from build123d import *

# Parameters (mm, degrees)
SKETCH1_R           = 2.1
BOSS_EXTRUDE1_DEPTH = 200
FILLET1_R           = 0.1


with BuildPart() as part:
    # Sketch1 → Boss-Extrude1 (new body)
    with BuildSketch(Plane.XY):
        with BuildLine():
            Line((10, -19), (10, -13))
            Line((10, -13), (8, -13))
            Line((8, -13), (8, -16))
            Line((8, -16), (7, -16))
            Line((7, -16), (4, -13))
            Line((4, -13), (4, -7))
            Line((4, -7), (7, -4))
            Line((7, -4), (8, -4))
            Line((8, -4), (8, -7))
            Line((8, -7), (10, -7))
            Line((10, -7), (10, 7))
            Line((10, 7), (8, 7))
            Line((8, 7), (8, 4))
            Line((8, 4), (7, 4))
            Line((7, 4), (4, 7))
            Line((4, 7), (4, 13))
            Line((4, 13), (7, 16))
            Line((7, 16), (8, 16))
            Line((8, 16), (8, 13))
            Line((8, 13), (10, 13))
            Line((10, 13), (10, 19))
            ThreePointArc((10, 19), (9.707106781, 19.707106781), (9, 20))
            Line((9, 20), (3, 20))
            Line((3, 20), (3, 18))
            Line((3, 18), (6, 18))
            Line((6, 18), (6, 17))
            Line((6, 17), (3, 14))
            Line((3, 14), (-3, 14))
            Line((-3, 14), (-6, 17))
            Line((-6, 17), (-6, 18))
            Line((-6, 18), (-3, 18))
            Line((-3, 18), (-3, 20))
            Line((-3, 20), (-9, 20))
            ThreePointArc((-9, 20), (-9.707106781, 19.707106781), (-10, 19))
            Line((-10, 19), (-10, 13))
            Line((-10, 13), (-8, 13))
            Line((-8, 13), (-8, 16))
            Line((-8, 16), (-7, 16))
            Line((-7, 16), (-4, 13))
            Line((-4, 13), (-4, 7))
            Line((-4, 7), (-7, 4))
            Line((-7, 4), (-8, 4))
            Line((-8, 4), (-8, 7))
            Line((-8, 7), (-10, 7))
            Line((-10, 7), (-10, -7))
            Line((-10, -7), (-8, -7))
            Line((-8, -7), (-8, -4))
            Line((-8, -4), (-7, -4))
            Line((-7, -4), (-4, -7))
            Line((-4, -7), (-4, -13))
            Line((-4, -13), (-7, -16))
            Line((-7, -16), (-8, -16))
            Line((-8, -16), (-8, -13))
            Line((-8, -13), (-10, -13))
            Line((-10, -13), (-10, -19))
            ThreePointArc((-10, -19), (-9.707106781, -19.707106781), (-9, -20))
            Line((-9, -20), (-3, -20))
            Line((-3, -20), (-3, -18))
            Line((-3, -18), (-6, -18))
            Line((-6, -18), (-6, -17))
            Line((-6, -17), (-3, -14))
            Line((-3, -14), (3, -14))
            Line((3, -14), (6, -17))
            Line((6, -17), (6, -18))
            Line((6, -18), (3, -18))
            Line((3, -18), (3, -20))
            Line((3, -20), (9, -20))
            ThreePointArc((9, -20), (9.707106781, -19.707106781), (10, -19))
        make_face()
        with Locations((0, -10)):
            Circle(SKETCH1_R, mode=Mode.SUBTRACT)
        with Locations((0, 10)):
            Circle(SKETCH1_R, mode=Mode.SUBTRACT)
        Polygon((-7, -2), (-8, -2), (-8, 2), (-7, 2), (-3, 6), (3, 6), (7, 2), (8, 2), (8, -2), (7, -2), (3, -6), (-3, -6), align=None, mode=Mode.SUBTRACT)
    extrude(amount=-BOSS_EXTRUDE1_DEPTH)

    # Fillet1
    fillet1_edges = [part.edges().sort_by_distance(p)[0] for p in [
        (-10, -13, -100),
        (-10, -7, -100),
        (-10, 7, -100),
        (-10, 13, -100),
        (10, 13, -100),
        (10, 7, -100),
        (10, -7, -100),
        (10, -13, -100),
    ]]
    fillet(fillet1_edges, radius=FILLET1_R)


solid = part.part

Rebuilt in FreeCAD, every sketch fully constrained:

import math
import FreeCAD as App
import Part
import Sketcher
Q = App.Units.Quantity


def edges_at(feature, points):
    """Names of the edges that pass closest to the given points."""
    edges = feature.Shape.Edges
    near = lambda p: min(range(len(edges)), key=lambda i: edges[i].distToShape(Part.Vertex(*p))[0])
    return sorted({f"Edge{near(p) + 1}" for p in points})

doc = App.newDocument("Part")
body = doc.addObject("PartDesign::Body", "Body")

sketch1 = doc.addObject("Sketcher::SketchObject", "Sketch")
body.addObject(sketch1)
sketch1.AttachmentSupport = (doc.XY_Plane, [""])
sketch1.MapMode = "FlatFace"
sketch1.addGeometry(Part.LineSegment(App.Vector(10, -19, 0), App.Vector(10, -13, 0)), False)
sketch1.addGeometry(Part.LineSegment(App.Vector(10, -13, 0), App.Vector(8, -13, 0)), False)
sketch1.addGeometry(Part.LineSegment(App.Vector(8, -13, 0), App.Vector(8, -16, 0)), False)
sketch1.addGeometry(Part.LineSegment(App.Vector(8, -16, 0), App.Vector(7, -16, 0)), False)
sketch1.addGeometry(Part.LineSegment(App.Vector(7, -16, 0), App.Vector(4, -13, 0)), False)
sketch1.addGeometry(Part.LineSegment(App.Vector(4, -13, 0), App.Vector(4, -7, 0)), False)
sketch1.addGeometry(Part.LineSegment(App.Vector(4, -7, 0), App.Vector(7, -4, 0)), False)
sketch1.addGeometry(Part.LineSegment(App.Vector(7, -4, 0), App.Vector(8, -4, 0)), False)
sketch1.addGeometry(Part.LineSegment(App.Vector(8, -4, 0), App.Vector(8, -7, 0)), False)
sketch1.addGeometry(Part.LineSegment(App.Vector(8, -7, 0), App.Vector(10, -7, 0)), False)
sketch1.addGeometry(Part.LineSegment(App.Vector(10, -7, 0), App.Vector(10, 7, 0)), False)
sketch1.addGeometry(Part.LineSegment(App.Vector(10, 7, 0), App.Vector(8, 7, 0)), False)
sketch1.addGeometry(Part.LineSegment(App.Vector(8, 7, 0), App.Vector(8, 4, 0)), False)
sketch1.addGeometry(Part.LineSegment(App.Vector(8, 4, 0), App.Vector(7, 4, 0)), False)
sketch1.addGeometry(Part.LineSegment(App.Vector(7, 4, 0), App.Vector(4, 7, 0)), False)
sketch1.addGeometry(Part.LineSegment(App.Vector(4, 7, 0), App.Vector(4, 13, 0)), False)
sketch1.addGeometry(Part.LineSegment(App.Vector(4, 13, 0), App.Vector(7, 16, 0)), False)
sketch1.addGeometry(Part.LineSegment(App.Vector(7, 16, 0), App.Vector(8, 16, 0)), False)
sketch1.addGeometry(Part.LineSegment(App.Vector(8, 16, 0), App.Vector(8, 13, 0)), False)
sketch1.addGeometry(Part.LineSegment(App.Vector(8, 13, 0), App.Vector(10, 13, 0)), False)
sketch1.addGeometry(Part.LineSegment(App.Vector(10, 13, 0), App.Vector(10, 19, 0)), False)
sketch1.addGeometry(Part.ArcOfCircle(Part.Circle(App.Vector(9, 19, 0), App.Vector(0, 0, 1), 1), math.radians(0), math.radians(90)), False)
sketch1.addGeometry(Part.LineSegment(App.Vector(9, 20, 0), App.Vector(3, 20, 0)), False)
sketch1.addGeometry(Part.LineSegment(App.Vector(3, 20, 0), App.Vector(3, 18, 0)), False)
sketch1.addGeometry(Part.LineSegment(App.Vector(3, 18, 0), App.Vector(6, 18, 0)), False)
sketch1.addGeometry(Part.LineSegment(App.Vector(6, 18, 0), App.Vector(6, 17, 0)), False)
sketch1.addGeometry(Part.LineSegment(App.Vector(6, 17, 0), App.Vector(3, 14, 0)), False)
sketch1.addGeometry(Part.LineSegment(App.Vector(3, 14, 0), App.Vector(-3, 14, 0)), False)
sketch1.addGeometry(Part.LineSegment(App.Vector(-3, 14, 0), App.Vector(-6, 17, 0)), False)
sketch1.addGeometry(Part.LineSegment(App.Vector(-6, 17, 0), App.Vector(-6, 18, 0)), False)
sketch1.addGeometry(Part.LineSegment(App.Vector(-6, 18, 0), App.Vector(-3, 18, 0)), False)
sketch1.addGeometry(Part.LineSegment(App.Vector(-3, 18, 0), App.Vector(-3, 20, 0)), False)
sketch1.addGeometry(Part.LineSegment(App.Vector(-3, 20, 0), App.Vector(-9, 20, 0)), False)
sketch1.addGeometry(Part.ArcOfCircle(Part.Circle(App.Vector(-9, 19, 0), App.Vector(0, 0, 1), 1), math.radians(90), math.radians(180)), False)
sketch1.addGeometry(Part.LineSegment(App.Vector(-10, 19, 0), App.Vector(-10, 13, 0)), False)
sketch1.addGeometry(Part.LineSegment(App.Vector(-10, 13, 0), App.Vector(-8, 13, 0)), False)
sketch1.addGeometry(Part.LineSegment(App.Vector(-8, 13, 0), App.Vector(-8, 16, 0)), False)
sketch1.addGeometry(Part.LineSegment(App.Vector(-8, 16, 0), App.Vector(-7, 16, 0)), False)
sketch1.addGeometry(Part.LineSegment(App.Vector(-7, 16, 0), App.Vector(-4, 13, 0)), False)
sketch1.addGeometry(Part.LineSegment(App.Vector(-4, 13, 0), App.Vector(-4, 7, 0)), False)
sketch1.addGeometry(Part.LineSegment(App.Vector(-4, 7, 0), App.Vector(-7, 4, 0)), False)
sketch1.addGeometry(Part.LineSegment(App.Vector(-7, 4, 0), App.Vector(-8, 4, 0)), False)
sketch1.addGeometry(Part.LineSegment(App.Vector(-8, 4, 0), App.Vector(-8, 7, 0)), False)
sketch1.addGeometry(Part.LineSegment(App.Vector(-8, 7, 0), App.Vector(-10, 7, 0)), False)
sketch1.addGeometry(Part.LineSegment(App.Vector(-10, 7, 0), App.Vector(-10, -7, 0)), False)
sketch1.addGeometry(Part.LineSegment(App.Vector(-10, -7, 0), App.Vector(-8, -7, 0)), False)
sketch1.addGeometry(Part.LineSegment(App.Vector(-8, -7, 0), App.Vector(-8, -4, 0)), False)
sketch1.addGeometry(Part.LineSegment(App.Vector(-8, -4, 0), App.Vector(-7, -4, 0)), False)
sketch1.addGeometry(Part.LineSegment(App.Vector(-7, -4, 0), App.Vector(-4, -7, 0)), False)
sketch1.addGeometry(Part.LineSegment(App.Vector(-4, -7, 0), App.Vector(-4, -13, 0)), False)
sketch1.addGeometry(Part.LineSegment(App.Vector(-4, -13, 0), App.Vector(-7, -16, 0)), False)
sketch1.addGeometry(Part.LineSegment(App.Vector(-7, -16, 0), App.Vector(-8, -16, 0)), False)
sketch1.addGeometry(Part.LineSegment(App.Vector(-8, -16, 0), App.Vector(-8, -13, 0)), False)
sketch1.addGeometry(Part.LineSegment(App.Vector(-8, -13, 0), App.Vector(-10, -13, 0)), False)
sketch1.addGeometry(Part.LineSegment(App.Vector(-10, -13, 0), App.Vector(-10, -19, 0)), False)
sketch1.addGeometry(Part.ArcOfCircle(Part.Circle(App.Vector(-9, -19, 0), App.Vector(0, 0, 1), 1), math.radians(-180), math.radians(-90)), False)
sketch1.addGeometry(Part.LineSegment(App.Vector(-9, -20, 0), App.Vector(-3, -20, 0)), False)
sketch1.addGeometry(Part.LineSegment(App.Vector(-3, -20, 0), App.Vector(-3, -18, 0)), False)
sketch1.addGeometry(Part.LineSegment(App.Vector(-3, -18, 0), App.Vector(-6, -18, 0)), False)
sketch1.addGeometry(Part.LineSegment(App.Vector(-6, -18, 0), App.Vector(-6, -17, 0)), False)
sketch1.addGeometry(Part.LineSegment(App.Vector(-6, -17, 0), App.Vector(-3, -14, 0)), False)
sketch1.addGeometry(Part.LineSegment(App.Vector(-3, -14, 0), App.Vector(3, -14, 0)), False)
sketch1.addGeometry(Part.LineSegment(App.Vector(3, -14, 0), App.Vector(6, -17, 0)), False)
sketch1.addGeometry(Part.LineSegment(App.Vector(6, -17, 0), App.Vector(6, -18, 0)), False)
sketch1.addGeometry(Part.LineSegment(App.Vector(6, -18, 0), App.Vector(3, -18, 0)), False)
sketch1.addGeometry(Part.LineSegment(App.Vector(3, -18, 0), App.Vector(3, -20, 0)), False)
sketch1.addGeometry(Part.LineSegment(App.Vector(3, -20, 0), App.Vector(9, -20, 0)), False)
sketch1.addGeometry(Part.ArcOfCircle(Part.Circle(App.Vector(9, -19, 0), App.Vector(0, 0, 1), 1), math.radians(-90), math.radians(0)), False)
sketch1.addGeometry(Part.Circle(App.Vector(0, -10, 0), App.Vector(0, 0, 1), 2.1), False)
sketch1.addGeometry(Part.LineSegment(App.Vector(-3, -6, 0), App.Vector(-7, -2, 0)), False)
sketch1.addGeometry(Part.LineSegment(App.Vector(-7, -2, 0), App.Vector(-8, -2, 0)), False)
sketch1.addGeometry(Part.LineSegment(App.Vector(-8, -2, 0), App.Vector(-8, 2, 0)), False)
sketch1.addGeometry(Part.LineSegment(App.Vector(-8, 2, 0), App.Vector(-7, 2, 0)), False)
sketch1.addGeometry(Part.LineSegment(App.Vector(-7, 2, 0), App.Vector(-3, 6, 0)), False)
sketch1.addGeometry(Part.LineSegment(App.Vector(-3, 6, 0), App.Vector(3, 6, 0)), False)
sketch1.addGeometry(Part.LineSegment(App.Vector(3, 6, 0), App.Vector(7, 2, 0)), False)
sketch1.addGeometry(Part.LineSegment(App.Vector(7, 2, 0), App.Vector(8, 2, 0)), False)
sketch1.addGeometry(Part.LineSegment(App.Vector(8, 2, 0), App.Vector(8, -2, 0)), False)
sketch1.addGeometry(Part.LineSegment(App.Vector(8, -2, 0), App.Vector(7, -2, 0)), False)
sketch1.addGeometry(Part.LineSegment(App.Vector(7, -2, 0), App.Vector(3, -6, 0)), False)
sketch1.addGeometry(Part.LineSegment(App.Vector(3, -6, 0), App.Vector(-3, -6, 0)), False)
sketch1.addGeometry(Part.Circle(App.Vector(0, 10, 0), App.Vector(0, 0, 1), 2.1), False)
sketch1.addConstraint(Sketcher.Constraint("Coincident", 0, 2, 1, 1))
sketch1.addConstraint(Sketcher.Constraint("Coincident", 1, 2, 2, 1))
sketch1.addConstraint(Sketcher.Constraint("Coincident", 2, 2, 3, 1))
sketch1.addConstraint(Sketcher.Constraint("Coincident", 3, 2, 4, 1))
sketch1.addConstraint(Sketcher.Constraint("Coincident", 4, 2, 5, 1))
sketch1.addConstraint(Sketcher.Constraint("Coincident", 5, 2, 6, 1))
sketch1.addConstraint(Sketcher.Constraint("Coincident", 6, 2, 7, 1))
sketch1.addConstraint(Sketcher.Constraint("Coincident", 7, 2, 8, 1))
sketch1.addConstraint(Sketcher.Constraint("Coincident", 8, 2, 9, 1))
sketch1.addConstraint(Sketcher.Constraint("Coincident", 9, 2, 10, 1))
sketch1.addConstraint(Sketcher.Constraint("Coincident", 10, 2, 11, 1))
sketch1.addConstraint(Sketcher.Constraint("Coincident", 11, 2, 12, 1))
sketch1.addConstraint(Sketcher.Constraint("Coincident", 12, 2, 13, 1))
sketch1.addConstraint(Sketcher.Constraint("Coincident", 13, 2, 14, 1))
sketch1.addConstraint(Sketcher.Constraint("Coincident", 14, 2, 15, 1))
sketch1.addConstraint(Sketcher.Constraint("Coincident", 15, 2, 16, 1))
sketch1.addConstraint(Sketcher.Constraint("Coincident", 16, 2, 17, 1))
sketch1.addConstraint(Sketcher.Constraint("Coincident", 17, 2, 18, 1))
sketch1.addConstraint(Sketcher.Constraint("Coincident", 18, 2, 19, 1))
sketch1.addConstraint(Sketcher.Constraint("Coincident", 19, 2, 20, 1))
sketch1.addConstraint(Sketcher.Constraint("Tangent", 20, 2, 21, 1))
sketch1.addConstraint(Sketcher.Constraint("Tangent", 21, 2, 22, 1))
sketch1.addConstraint(Sketcher.Constraint("Coincident", 22, 2, 23, 1))
sketch1.addConstraint(Sketcher.Constraint("Coincident", 23, 2, 24, 1))
sketch1.addConstraint(Sketcher.Constraint("Coincident", 24, 2, 25, 1))
sketch1.addConstraint(Sketcher.Constraint("Coincident", 25, 2, 26, 1))
sketch1.addConstraint(Sketcher.Constraint("Coincident", 26, 2, 27, 1))
sketch1.addConstraint(Sketcher.Constraint("Coincident", 27, 2, 28, 1))
sketch1.addConstraint(Sketcher.Constraint("Coincident", 28, 2, 29, 1))
sketch1.addConstraint(Sketcher.Constraint("Coincident", 29, 2, 30, 1))
sketch1.addConstraint(Sketcher.Constraint("Coincident", 30, 2, 31, 1))
sketch1.addConstraint(Sketcher.Constraint("Coincident", 31, 2, 32, 1))
sketch1.addConstraint(Sketcher.Constraint("Tangent", 32, 2, 33, 1))
sketch1.addConstraint(Sketcher.Constraint("Tangent", 33, 2, 34, 1))
sketch1.addConstraint(Sketcher.Constraint("Coincident", 34, 2, 35, 1))
sketch1.addConstraint(Sketcher.Constraint("Coincident", 35, 2, 36, 1))
sketch1.addConstraint(Sketcher.Constraint("Coincident", 36, 2, 37, 1))
sketch1.addConstraint(Sketcher.Constraint("Coincident", 37, 2, 38, 1))
sketch1.addConstraint(Sketcher.Constraint("Coincident", 38, 2, 39, 1))
sketch1.addConstraint(Sketcher.Constraint("Coincident", 39, 2, 40, 1))
sketch1.addConstraint(Sketcher.Constraint("Coincident", 40, 2, 41, 1))
sketch1.addConstraint(Sketcher.Constraint("Coincident", 41, 2, 42, 1))
sketch1.addConstraint(Sketcher.Constraint("Coincident", 42, 2, 43, 1))
sketch1.addConstraint(Sketcher.Constraint("Coincident", 43, 2, 44, 1))
sketch1.addConstraint(Sketcher.Constraint("Coincident", 44, 2, 45, 1))
sketch1.addConstraint(Sketcher.Constraint("Coincident", 45, 2, 46, 1))
sketch1.addConstraint(Sketcher.Constraint("Coincident", 46, 2, 47, 1))
sketch1.addConstraint(Sketcher.Constraint("Coincident", 47, 2, 48, 1))
sketch1.addConstraint(Sketcher.Constraint("Coincident", 48, 2, 49, 1))
sketch1.addConstraint(Sketcher.Constraint("Coincident", 49, 2, 50, 1))
sketch1.addConstraint(Sketcher.Constraint("Coincident", 50, 2, 51, 1))
sketch1.addConstraint(Sketcher.Constraint("Coincident", 51, 2, 52, 1))
sketch1.addConstraint(Sketcher.Constraint("Coincident", 52, 2, 53, 1))
sketch1.addConstraint(Sketcher.Constraint("Coincident", 53, 2, 54, 1))
sketch1.addConstraint(Sketcher.Constraint("Tangent", 54, 2, 55, 1))
sketch1.addConstraint(Sketcher.Constraint("Tangent", 55, 2, 56, 1))
sketch1.addConstraint(Sketcher.Constraint("Coincident", 56, 2, 57, 1))
sketch1.addConstraint(Sketcher.Constraint("Coincident", 57, 2, 58, 1))
sketch1.addConstraint(Sketcher.Constraint("Coincident", 58, 2, 59, 1))
sketch1.addConstraint(Sketcher.Constraint("Coincident", 59, 2, 60, 1))
sketch1.addConstraint(Sketcher.Constraint("Coincident", 60, 2, 61, 1))
sketch1.addConstraint(Sketcher.Constraint("Coincident", 61, 2, 62, 1))
sketch1.addConstraint(Sketcher.Constraint("Coincident", 62, 2, 63, 1))
sketch1.addConstraint(Sketcher.Constraint("Coincident", 63, 2, 64, 1))
sketch1.addConstraint(Sketcher.Constraint("Coincident", 64, 2, 65, 1))
sketch1.addConstraint(Sketcher.Constraint("Coincident", 65, 2, 66, 1))
sketch1.addConstraint(Sketcher.Constraint("Tangent", 66, 2, 67, 1))
sketch1.addConstraint(Sketcher.Constraint("Tangent", 67, 2, 0, 1))
sketch1.addConstraint(Sketcher.Constraint("Coincident", 69, 2, 70, 1))
sketch1.addConstraint(Sketcher.Constraint("Coincident", 70, 2, 71, 1))
sketch1.addConstraint(Sketcher.Constraint("Coincident", 71, 2, 72, 1))
sketch1.addConstraint(Sketcher.Constraint("Coincident", 72, 2, 73, 1))
sketch1.addConstraint(Sketcher.Constraint("Coincident", 73, 2, 74, 1))
sketch1.addConstraint(Sketcher.Constraint("Coincident", 74, 2, 75, 1))
sketch1.addConstraint(Sketcher.Constraint("Coincident", 75, 2, 76, 1))
sketch1.addConstraint(Sketcher.Constraint("Coincident", 76, 2, 77, 1))
sketch1.addConstraint(Sketcher.Constraint("Coincident", 77, 2, 78, 1))
sketch1.addConstraint(Sketcher.Constraint("Coincident", 78, 2, 79, 1))
sketch1.addConstraint(Sketcher.Constraint("Coincident", 79, 2, 80, 1))
sketch1.addConstraint(Sketcher.Constraint("Coincident", 80, 2, 69, 1))
sketch1.addConstraint(Sketcher.Constraint("Vertical", 0))
sketch1.addConstraint(Sketcher.Constraint("Horizontal", 1))
sketch1.addConstraint(Sketcher.Constraint("Vertical", 2))
sketch1.addConstraint(Sketcher.Constraint("Horizontal", 3))
sketch1.addConstraint(Sketcher.Constraint("Vertical", 5))
sketch1.addConstraint(Sketcher.Constraint("Horizontal", 7))
sketch1.addConstraint(Sketcher.Constraint("Vertical", 8))
sketch1.addConstraint(Sketcher.Constraint("Horizontal", 9))
sketch1.addConstraint(Sketcher.Constraint("Vertical", 10))
sketch1.addConstraint(Sketcher.Constraint("Horizontal", 11))
sketch1.addConstraint(Sketcher.Constraint("Vertical", 12))
sketch1.addConstraint(Sketcher.Constraint("Horizontal", 13))
sketch1.addConstraint(Sketcher.Constraint("Vertical", 15))
sketch1.addConstraint(Sketcher.Constraint("Horizontal", 17))
sketch1.addConstraint(Sketcher.Constraint("Vertical", 18))
sketch1.addConstraint(Sketcher.Constraint("Horizontal", 19))
sketch1.addConstraint(Sketcher.Constraint("Vertical", 20))
sketch1.addConstraint(Sketcher.Constraint("Horizontal", 22))
sketch1.addConstraint(Sketcher.Constraint("Vertical", 23))
sketch1.addConstraint(Sketcher.Constraint("Horizontal", 24))
sketch1.addConstraint(Sketcher.Constraint("Vertical", 25))
sketch1.addConstraint(Sketcher.Constraint("Horizontal", 27))
sketch1.addConstraint(Sketcher.Constraint("Vertical", 29))
sketch1.addConstraint(Sketcher.Constraint("Horizontal", 30))
sketch1.addConstraint(Sketcher.Constraint("Vertical", 31))
sketch1.addConstraint(Sketcher.Constraint("Horizontal", 32))
sketch1.addConstraint(Sketcher.Constraint("Vertical", 34))
sketch1.addConstraint(Sketcher.Constraint("Horizontal", 35))
sketch1.addConstraint(Sketcher.Constraint("Vertical", 36))
sketch1.addConstraint(Sketcher.Constraint("Horizontal", 37))
sketch1.addConstraint(Sketcher.Constraint("Vertical", 39))
sketch1.addConstraint(Sketcher.Constraint("Horizontal", 41))
sketch1.addConstraint(Sketcher.Constraint("Vertical", 42))
sketch1.addConstraint(Sketcher.Constraint("Horizontal", 43))
sketch1.addConstraint(Sketcher.Constraint("Vertical", 44))
sketch1.addConstraint(Sketcher.Constraint("Horizontal", 45))
sketch1.addConstraint(Sketcher.Constraint("Vertical", 46))
sketch1.addConstraint(Sketcher.Constraint("Horizontal", 47))
sketch1.addConstraint(Sketcher.Constraint("Vertical", 49))
sketch1.addConstraint(Sketcher.Constraint("Horizontal", 51))
sketch1.addConstraint(Sketcher.Constraint("Vertical", 52))
sketch1.addConstraint(Sketcher.Constraint("Horizontal", 53))
sketch1.addConstraint(Sketcher.Constraint("Vertical", 54))
sketch1.addConstraint(Sketcher.Constraint("Horizontal", 56))
sketch1.addConstraint(Sketcher.Constraint("Vertical", 57))
sketch1.addConstraint(Sketcher.Constraint("Horizontal", 58))
sketch1.addConstraint(Sketcher.Constraint("Vertical", 59))
sketch1.addConstraint(Sketcher.Constraint("Horizontal", 61))
sketch1.addConstraint(Sketcher.Constraint("Vertical", 63))
sketch1.addConstraint(Sketcher.Constraint("Horizontal", 64))
sketch1.addConstraint(Sketcher.Constraint("Vertical", 65))
sketch1.addConstraint(Sketcher.Constraint("Horizontal", 66))
sketch1.addConstraint(Sketcher.Constraint("Horizontal", 70))
sketch1.addConstraint(Sketcher.Constraint("Vertical", 71))
sketch1.addConstraint(Sketcher.Constraint("Horizontal", 72))
sketch1.addConstraint(Sketcher.Constraint("Horizontal", 74))
sketch1.addConstraint(Sketcher.Constraint("Horizontal", 76))
sketch1.addConstraint(Sketcher.Constraint("Vertical", 77))
sketch1.addConstraint(Sketcher.Constraint("Horizontal", 78))
sketch1.addConstraint(Sketcher.Constraint("Horizontal", 80))
sketch1.addConstraint(Sketcher.Constraint("Equal", 21, 33))
sketch1.addConstraint(Sketcher.Constraint("Equal", 33, 55))
sketch1.addConstraint(Sketcher.Constraint("Equal", 55, 67))
sketch1.addConstraint(Sketcher.Constraint("Equal", 68, 81))
sketch1.addConstraint(Sketcher.Constraint("Symmetric", 21, 3, 55, 3, -1, 1))
sketch1.addConstraint(Sketcher.Constraint("Symmetric", 33, 3, 67, 3, -1, 1))
sketch1.addConstraint(Sketcher.Constraint("Symmetric", 68, 3, 81, 3, -1, 1))
sketch1.addConstraint(Sketcher.Constraint("Symmetric", 1, 2, 35, 2, -1, 1))
sketch1.addConstraint(Sketcher.Constraint("Symmetric", 3, 2, 37, 2, -1, 1))
sketch1.addConstraint(Sketcher.Constraint("Symmetric", 4, 2, 38, 2, -1, 1))
sketch1.addConstraint(Sketcher.Constraint("Symmetric", 6, 2, 40, 2, -1, 1))
sketch1.addConstraint(Sketcher.Constraint("Symmetric", 8, 2, 42, 2, -1, 1))
sketch1.addConstraint(Sketcher.Constraint("Symmetric", 10, 2, 44, 2, -1, 1))
sketch1.addConstraint(Sketcher.Constraint("Symmetric", 12, 2, 46, 2, -1, 1))
sketch1.addConstraint(Sketcher.Constraint("Symmetric", 14, 2, 48, 2, -1, 1))
sketch1.addConstraint(Sketcher.Constraint("Symmetric", 16, 2, 50, 2, -1, 1))
sketch1.addConstraint(Sketcher.Constraint("Symmetric", 18, 2, 52, 2, -1, 1))
sketch1.addConstraint(Sketcher.Constraint("Symmetric", 23, 2, 57, 2, -1, 1))
sketch1.addConstraint(Sketcher.Constraint("Symmetric", 25, 2, 59, 2, -1, 1))
sketch1.addConstraint(Sketcher.Constraint("Symmetric", 26, 2, 60, 2, -1, 1))
sketch1.addConstraint(Sketcher.Constraint("Symmetric", 28, 2, 62, 2, -1, 1))
sketch1.addConstraint(Sketcher.Constraint("Symmetric", 30, 2, 64, 2, -1, 1))
sketch1.addConstraint(Sketcher.Constraint("Symmetric", 69, 2, 75, 2, -1, 1))
sketch1.addConstraint(Sketcher.Constraint("Symmetric", 71, 2, 77, 2, -1, 1))
sketch1.addConstraint(Sketcher.Constraint("Symmetric", 73, 2, 79, 2, -1, 1))
sketch1.addConstraint(Sketcher.Constraint("Symmetric", 21, 3, 33, 3, -2))
sketch1.addConstraint(Sketcher.Constraint("Symmetric", 25, 2, 28, 2, -2))
sketch1.addConstraint(Sketcher.Constraint("Symmetric", 23, 2, 30, 2, -2))
sketch1.addConstraint(Sketcher.Constraint("Symmetric", 18, 2, 35, 2, -2))
sketch1.addConstraint(Sketcher.Constraint("Symmetric", 16, 2, 37, 2, -2))
sketch1.addConstraint(Sketcher.Constraint("Symmetric", 15, 2, 38, 2, -2))
sketch1.addConstraint(Sketcher.Constraint("Symmetric", 13, 2, 40, 2, -2))
sketch1.addConstraint(Sketcher.Constraint("Symmetric", 11, 2, 42, 2, -2))
sketch1.addConstraint(Sketcher.Constraint("Symmetric", 72, 2, 75, 2, -2))
sketch1.addConstraint(Sketcher.Constraint("PointOnObject", 68, 3, -2))
sketch1.addConstraint(Sketcher.Constraint("Perpendicular", 4, 6))
sketch1.addConstraint(Sketcher.Constraint("Perpendicular", 6, 14))
sketch1.addConstraint(Sketcher.Constraint("Perpendicular", 14, 16))
sketch1.addConstraint(Sketcher.Constraint("Parallel", 16, 26))
sketch1.addConstraint(Sketcher.Constraint("Perpendicular", 26, 28))
sketch1.addConstraint(Sketcher.Constraint("Perpendicular", 38, 40))
sketch1.addConstraint(Sketcher.Constraint("Perpendicular", 40, 48))
sketch1.addConstraint(Sketcher.Constraint("Perpendicular", 48, 50))
sketch1.addConstraint(Sketcher.Constraint("Perpendicular", 60, 62))
sketch1.addConstraint(Sketcher.Constraint("Parallel", 62, 69))
sketch1.addConstraint(Sketcher.Constraint("Perpendicular", 69, 73))
sketch1.addConstraint(Sketcher.Constraint("Perpendicular", 73, 75))
sketch1.addConstraint(Sketcher.Constraint("Perpendicular", 75, 79))
sketch1.addConstraint(Sketcher.Constraint("Horizontal", 1, 2, 4, 2))
sketch1.addConstraint(Sketcher.Constraint("Horizontal", 5, 2, 8, 2))
sketch1.addConstraint(Sketcher.Constraint("Vertical", 3, 2, 6, 2))
sketch1.addConstraint(Sketcher.Constraint("Vertical", 2, 2, 7, 2))
sketch1.addConstraint(Sketcher.Constraint("Vertical", 0, 2, 9, 2))
sketch1.addConstraint(Sketcher.Constraint("Vertical", 23, 2, 26, 2))
sketch1.addConstraint(Sketcher.Constraint("Vertical", 50, 2, 69, 2))
sketch1.addConstraint(Sketcher.Constraint("Vertical", 52, 2, 70, 2))
sketch1.addConstraint(Sketcher.Constraint("Vertical", 60, 2, 73, 2))
sketch1.addConstraint(Sketcher.Constraint("Equal", 22, 27))
sketch1.addConstraint(Sketcher.Constraint("Equal", 80, 0))
sketch1.addConstraint(Sketcher.Constraint("Equal", 64, 2))
sketch1.addConstraint(Sketcher.Constraint("Equal", 0, 5))
sketch1.addConstraint(Sketcher.Constraint("Equal", 53, 23))
sketch1.addConstraint(Sketcher.Constraint("Equal", 78, 25))
sketch1.addConstraint(Sketcher.Constraint("Radius", 21, Q("1 mm")))
sketch1.addConstraint(Sketcher.Constraint("Diameter", 68, Q("4.2 mm")))
sketch1.addConstraint(Sketcher.Constraint("DistanceX", 1, 2, 1, 1, Q("2 mm")))
sketch1.addConstraint(Sketcher.Constraint("DistanceX", 3, 2, 3, 1, Q("1 mm")))
sketch1.addConstraint(Sketcher.Constraint("DistanceX", 22, 2, 22, 1, Q("6 mm")))
sketch1.addConstraint(Sketcher.Constraint("DistanceX", 24, 1, 24, 2, Q("3 mm")))
sketch1.addConstraint(Sketcher.Constraint("DistanceY", 10, 1, 10, 2, Q("14 mm")))
sketch1.addConstraint(Sketcher.Constraint("DistanceY", 71, 1, 71, 2, Q("4 mm")))
sketch1.addConstraint(Sketcher.Constraint("DistanceY", 68, 3, -1, 1, Q("10 mm")))
pad1 = doc.addObject("PartDesign::Pad", "Pad")
body.addObject(pad1)
pad1.Profile = sketch1
pad1.Length = 200
pad1.Reversed = True
doc.recompute()

fillet = doc.addObject("PartDesign::Fillet", "Fillet")
body.addObject(fillet)
fillet.Base = (pad1, edges_at(pad1, [
    (-10, -13, -100),
    (-10, -7, -100),
    (-10, 7, -100),
    (-10, 13, -100),
    (10, 13, -100),
    (10, 7, -100),
    (10, -7, -100),
    (10, -13, -100),
]))
fillet.Radius = 0.1

doc.recompute()
